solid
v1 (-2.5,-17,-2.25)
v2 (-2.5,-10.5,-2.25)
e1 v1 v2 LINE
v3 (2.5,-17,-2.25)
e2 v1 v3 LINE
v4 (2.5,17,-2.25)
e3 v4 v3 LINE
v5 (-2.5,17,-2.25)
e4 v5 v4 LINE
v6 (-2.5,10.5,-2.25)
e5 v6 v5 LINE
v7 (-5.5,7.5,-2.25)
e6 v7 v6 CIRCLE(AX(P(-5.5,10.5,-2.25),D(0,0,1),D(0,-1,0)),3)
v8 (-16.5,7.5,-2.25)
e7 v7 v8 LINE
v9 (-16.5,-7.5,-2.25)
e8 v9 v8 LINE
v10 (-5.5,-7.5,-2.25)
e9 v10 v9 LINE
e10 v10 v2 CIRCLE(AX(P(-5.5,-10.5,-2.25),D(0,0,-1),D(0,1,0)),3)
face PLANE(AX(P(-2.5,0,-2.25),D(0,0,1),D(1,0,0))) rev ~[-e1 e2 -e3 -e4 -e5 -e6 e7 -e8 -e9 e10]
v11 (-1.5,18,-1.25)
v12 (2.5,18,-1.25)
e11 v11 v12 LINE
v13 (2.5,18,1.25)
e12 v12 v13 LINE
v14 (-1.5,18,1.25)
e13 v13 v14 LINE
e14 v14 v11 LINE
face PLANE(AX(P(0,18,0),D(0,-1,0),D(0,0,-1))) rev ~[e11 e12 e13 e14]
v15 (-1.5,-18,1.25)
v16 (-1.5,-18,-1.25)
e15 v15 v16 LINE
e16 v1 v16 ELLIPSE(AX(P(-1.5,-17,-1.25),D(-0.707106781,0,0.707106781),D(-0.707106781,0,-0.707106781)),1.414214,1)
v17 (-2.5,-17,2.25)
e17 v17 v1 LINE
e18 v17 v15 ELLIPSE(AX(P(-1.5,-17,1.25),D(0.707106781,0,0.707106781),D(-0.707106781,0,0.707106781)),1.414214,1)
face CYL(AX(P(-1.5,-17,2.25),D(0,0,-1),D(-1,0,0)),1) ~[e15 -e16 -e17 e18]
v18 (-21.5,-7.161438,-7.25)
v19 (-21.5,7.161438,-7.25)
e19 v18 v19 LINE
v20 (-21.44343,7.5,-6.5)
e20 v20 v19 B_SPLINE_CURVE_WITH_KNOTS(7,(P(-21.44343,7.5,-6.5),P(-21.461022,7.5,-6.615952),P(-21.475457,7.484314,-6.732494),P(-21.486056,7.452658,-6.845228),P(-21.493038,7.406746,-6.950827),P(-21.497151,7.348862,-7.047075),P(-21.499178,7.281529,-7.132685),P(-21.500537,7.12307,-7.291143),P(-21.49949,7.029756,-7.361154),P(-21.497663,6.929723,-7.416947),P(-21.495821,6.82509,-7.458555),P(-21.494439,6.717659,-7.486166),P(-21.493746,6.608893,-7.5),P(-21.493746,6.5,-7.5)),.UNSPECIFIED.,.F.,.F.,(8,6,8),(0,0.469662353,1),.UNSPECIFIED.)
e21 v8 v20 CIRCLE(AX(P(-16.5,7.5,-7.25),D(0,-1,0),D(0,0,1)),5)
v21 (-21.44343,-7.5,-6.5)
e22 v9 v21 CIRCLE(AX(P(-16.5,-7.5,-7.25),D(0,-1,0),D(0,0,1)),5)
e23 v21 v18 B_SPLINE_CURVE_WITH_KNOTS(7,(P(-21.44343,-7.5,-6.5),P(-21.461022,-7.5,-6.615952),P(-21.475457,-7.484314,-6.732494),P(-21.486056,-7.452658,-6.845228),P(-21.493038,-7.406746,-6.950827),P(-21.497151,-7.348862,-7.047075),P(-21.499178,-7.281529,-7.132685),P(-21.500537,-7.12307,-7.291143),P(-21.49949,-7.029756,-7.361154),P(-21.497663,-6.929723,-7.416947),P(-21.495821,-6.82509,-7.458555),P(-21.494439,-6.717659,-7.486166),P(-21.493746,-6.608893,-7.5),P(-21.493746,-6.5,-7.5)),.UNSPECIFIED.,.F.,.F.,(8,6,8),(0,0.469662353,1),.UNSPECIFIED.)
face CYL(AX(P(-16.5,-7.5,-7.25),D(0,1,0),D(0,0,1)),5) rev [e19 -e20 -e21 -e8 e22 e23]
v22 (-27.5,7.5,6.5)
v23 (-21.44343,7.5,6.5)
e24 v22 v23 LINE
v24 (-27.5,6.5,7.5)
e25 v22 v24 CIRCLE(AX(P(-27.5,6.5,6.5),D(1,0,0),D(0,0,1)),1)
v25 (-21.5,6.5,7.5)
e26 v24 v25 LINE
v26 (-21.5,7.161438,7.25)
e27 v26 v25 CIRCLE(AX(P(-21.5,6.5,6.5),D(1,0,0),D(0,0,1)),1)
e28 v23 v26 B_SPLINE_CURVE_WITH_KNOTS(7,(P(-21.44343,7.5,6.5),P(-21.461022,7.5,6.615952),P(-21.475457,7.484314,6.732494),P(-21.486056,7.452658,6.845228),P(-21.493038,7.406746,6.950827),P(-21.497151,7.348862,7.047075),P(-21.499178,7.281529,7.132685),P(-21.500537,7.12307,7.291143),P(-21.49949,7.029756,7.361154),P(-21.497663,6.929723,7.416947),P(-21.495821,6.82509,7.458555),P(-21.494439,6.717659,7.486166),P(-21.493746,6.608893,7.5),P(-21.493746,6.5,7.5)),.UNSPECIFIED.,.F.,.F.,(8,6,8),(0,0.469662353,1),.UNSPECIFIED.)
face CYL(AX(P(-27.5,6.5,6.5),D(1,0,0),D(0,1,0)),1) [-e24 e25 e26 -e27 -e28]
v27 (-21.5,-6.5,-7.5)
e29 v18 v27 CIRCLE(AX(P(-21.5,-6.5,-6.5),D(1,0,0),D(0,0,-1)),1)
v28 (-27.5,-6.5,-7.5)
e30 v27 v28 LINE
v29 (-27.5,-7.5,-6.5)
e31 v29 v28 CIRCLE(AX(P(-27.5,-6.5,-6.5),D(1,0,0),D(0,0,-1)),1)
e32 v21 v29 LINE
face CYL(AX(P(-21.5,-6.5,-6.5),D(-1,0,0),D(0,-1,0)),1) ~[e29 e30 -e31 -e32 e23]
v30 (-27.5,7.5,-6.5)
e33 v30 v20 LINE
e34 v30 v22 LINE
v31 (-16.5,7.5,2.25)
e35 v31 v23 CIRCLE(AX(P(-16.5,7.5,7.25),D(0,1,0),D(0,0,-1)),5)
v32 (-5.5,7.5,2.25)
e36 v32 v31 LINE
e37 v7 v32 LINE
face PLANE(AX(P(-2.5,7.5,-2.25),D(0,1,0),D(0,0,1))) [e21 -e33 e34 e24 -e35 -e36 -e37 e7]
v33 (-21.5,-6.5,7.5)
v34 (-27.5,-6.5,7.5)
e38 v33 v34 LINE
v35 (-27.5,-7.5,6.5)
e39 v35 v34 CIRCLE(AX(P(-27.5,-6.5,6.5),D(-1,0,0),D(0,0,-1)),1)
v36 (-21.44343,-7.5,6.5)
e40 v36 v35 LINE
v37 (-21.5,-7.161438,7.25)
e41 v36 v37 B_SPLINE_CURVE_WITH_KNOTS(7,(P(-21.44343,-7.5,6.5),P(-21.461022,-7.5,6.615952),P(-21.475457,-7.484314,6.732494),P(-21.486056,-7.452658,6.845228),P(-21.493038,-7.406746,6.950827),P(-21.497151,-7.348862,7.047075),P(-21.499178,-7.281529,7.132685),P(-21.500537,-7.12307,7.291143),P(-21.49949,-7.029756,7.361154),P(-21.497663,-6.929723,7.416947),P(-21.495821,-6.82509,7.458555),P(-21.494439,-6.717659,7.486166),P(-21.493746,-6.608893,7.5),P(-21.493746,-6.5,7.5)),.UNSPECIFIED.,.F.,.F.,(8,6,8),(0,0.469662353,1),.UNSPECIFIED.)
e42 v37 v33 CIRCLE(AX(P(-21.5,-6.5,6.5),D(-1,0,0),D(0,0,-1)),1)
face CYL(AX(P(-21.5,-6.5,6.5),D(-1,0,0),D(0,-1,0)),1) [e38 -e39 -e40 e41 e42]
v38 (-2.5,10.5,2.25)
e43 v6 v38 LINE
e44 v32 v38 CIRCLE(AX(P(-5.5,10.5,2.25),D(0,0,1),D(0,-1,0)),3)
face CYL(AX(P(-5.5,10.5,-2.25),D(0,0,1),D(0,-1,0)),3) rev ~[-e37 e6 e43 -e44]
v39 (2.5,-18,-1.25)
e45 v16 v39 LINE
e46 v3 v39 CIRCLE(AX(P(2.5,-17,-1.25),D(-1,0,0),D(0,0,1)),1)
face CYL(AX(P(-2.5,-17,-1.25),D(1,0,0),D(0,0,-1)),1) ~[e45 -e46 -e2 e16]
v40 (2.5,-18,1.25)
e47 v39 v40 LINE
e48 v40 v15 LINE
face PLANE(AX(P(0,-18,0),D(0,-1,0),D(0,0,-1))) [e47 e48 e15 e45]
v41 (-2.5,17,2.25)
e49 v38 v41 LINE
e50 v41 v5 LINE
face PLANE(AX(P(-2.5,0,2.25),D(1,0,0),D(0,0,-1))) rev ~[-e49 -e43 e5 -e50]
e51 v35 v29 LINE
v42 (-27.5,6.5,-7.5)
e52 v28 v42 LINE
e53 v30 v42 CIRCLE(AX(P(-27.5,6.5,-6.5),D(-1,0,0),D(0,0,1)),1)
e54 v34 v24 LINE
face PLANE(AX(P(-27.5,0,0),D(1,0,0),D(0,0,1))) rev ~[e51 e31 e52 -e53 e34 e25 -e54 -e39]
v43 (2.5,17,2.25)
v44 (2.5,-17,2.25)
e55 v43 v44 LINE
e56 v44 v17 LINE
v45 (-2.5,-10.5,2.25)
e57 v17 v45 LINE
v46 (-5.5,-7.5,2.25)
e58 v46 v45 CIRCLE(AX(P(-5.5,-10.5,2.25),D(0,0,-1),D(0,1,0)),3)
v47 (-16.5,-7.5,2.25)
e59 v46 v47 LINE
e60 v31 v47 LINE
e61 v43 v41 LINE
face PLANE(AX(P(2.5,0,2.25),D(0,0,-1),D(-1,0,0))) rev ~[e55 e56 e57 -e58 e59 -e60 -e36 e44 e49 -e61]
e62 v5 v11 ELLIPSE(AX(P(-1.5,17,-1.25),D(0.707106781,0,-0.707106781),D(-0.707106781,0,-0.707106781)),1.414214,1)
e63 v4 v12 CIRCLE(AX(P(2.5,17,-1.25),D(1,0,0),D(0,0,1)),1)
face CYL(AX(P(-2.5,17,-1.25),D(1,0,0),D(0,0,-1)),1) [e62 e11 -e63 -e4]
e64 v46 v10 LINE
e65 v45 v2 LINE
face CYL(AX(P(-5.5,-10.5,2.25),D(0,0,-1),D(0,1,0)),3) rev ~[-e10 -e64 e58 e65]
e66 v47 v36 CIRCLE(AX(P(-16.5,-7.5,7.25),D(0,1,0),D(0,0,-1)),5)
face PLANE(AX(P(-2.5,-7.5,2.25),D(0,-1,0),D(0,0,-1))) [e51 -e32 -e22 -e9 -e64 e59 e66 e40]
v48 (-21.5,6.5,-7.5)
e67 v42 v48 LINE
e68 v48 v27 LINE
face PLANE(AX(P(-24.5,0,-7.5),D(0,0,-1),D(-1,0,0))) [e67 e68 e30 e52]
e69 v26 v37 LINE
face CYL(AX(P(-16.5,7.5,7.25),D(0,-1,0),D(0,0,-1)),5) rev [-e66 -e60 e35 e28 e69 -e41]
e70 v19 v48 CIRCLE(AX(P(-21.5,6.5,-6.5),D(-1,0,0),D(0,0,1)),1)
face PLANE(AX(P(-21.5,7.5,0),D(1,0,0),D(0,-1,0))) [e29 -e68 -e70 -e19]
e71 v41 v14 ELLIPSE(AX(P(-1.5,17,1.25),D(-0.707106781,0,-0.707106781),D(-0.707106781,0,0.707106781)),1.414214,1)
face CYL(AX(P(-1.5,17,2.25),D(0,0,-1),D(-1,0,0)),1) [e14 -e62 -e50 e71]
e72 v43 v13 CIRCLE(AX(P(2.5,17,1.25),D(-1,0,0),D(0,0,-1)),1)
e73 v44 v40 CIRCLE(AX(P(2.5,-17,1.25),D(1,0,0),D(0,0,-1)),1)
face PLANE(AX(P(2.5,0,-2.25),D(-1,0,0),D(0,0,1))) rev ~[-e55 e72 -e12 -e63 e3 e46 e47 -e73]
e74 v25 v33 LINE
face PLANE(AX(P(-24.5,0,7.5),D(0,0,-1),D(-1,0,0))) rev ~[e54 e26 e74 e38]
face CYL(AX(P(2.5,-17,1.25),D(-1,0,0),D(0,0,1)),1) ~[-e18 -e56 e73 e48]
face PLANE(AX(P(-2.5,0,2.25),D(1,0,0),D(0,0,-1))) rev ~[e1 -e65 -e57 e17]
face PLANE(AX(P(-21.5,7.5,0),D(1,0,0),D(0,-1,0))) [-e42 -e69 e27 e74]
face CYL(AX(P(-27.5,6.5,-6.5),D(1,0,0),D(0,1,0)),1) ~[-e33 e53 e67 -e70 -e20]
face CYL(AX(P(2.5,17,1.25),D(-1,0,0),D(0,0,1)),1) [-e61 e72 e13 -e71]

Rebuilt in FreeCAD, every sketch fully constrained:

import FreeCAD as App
import Part
import Sketcher


def edges_at(feature, points):
    """Names of the edges that pass closest to the given points."""
    edges = feature.Shape.Edges
    near = lambda p: min(range(len(edges)), key=lambda i: edges[i].distToShape(Part.Vertex(*p))[0])
    return sorted({f"Edge{near(p) + 1}" for p in points})

doc = App.newDocument("Part")
body = doc.addObject("PartDesign::Body", "Body")

sketch1 = body.newObject("Sketcher::SketchObject", "Sketch")
sketch1.AttachmentSupport = (doc.getObject("XZ_Plane"), [""])
sketch1.MapMode = "FlatFace"
sketch1.addGeometry([
    Part.LineSegment(App.Vector(-2.5, 2.25, 0), App.Vector(-2.5, -2.25, 0)),
    Part.LineSegment(App.Vector(-2.5, -2.25, 0), App.Vector(2.5, -2.25, 0)),
    Part.LineSegment(App.Vector(2.5, -2.25, 0), App.Vector(2.5, 2.25, 0)),
    Part.LineSegment(App.Vector(2.5, 2.25, 0), App.Vector(-2.5, 2.25, 0)),
], False)
sketch1.addConstraint([
    Sketcher.Constraint("Coincident", 0, 2, 1, 1),
    Sketcher.Constraint("Coincident", 1, 2, 2, 1),
    Sketcher.Constraint("Coincident", 2, 2, 3, 1),
    Sketcher.Constraint("Coincident", 3, 2, 0, 1),
    Sketcher.Constraint("Vertical", 0),
    Sketcher.Constraint("Horizontal", 1),
    Sketcher.Constraint("Vertical", 2),
    Sketcher.Constraint("Horizontal", 3),
    Sketcher.Constraint("Symmetric", 0, 2, 2, 2, -1, 1),
    Sketcher.Constraint("DistanceX", 0, 2, -1, 1, 2.5),
    Sketcher.Constraint("DistanceY", 0, 2, 0, 1, 4.5),
])
pad1 = body.newObject("PartDesign::Pad", "Pad")
pad1.Profile = sketch1
pad1.Length = 36
pad1.Midplane = True
doc.recompute()

fillet = body.newObject("PartDesign::Fillet", "Fillet")
fillet.Base = (pad1, edges_at(pad1, [(0, 18, 2.25), (-2.5, 18, 0), (0, 18, -2.25)]))
fillet.Radius = 1
doc.recompute()

mirrored = body.newObject("PartDesign::Mirrored", "Mirrored")
mirrored.Originals = [fillet]
mirrored.MirrorPlane = (doc.getObject("XZ_Plane"), [""])
body.Tip = mirrored

sketch2 = body.newObject("Sketcher::SketchObject", "Sketch001")
sketch2.AttachmentSupport = (doc.getObject("YZ_Plane"), [""])
sketch2.MapMode = "FlatFace"
sketch2.AttachmentOffset = App.Placement(App.Vector(0, 0, -2.5), App.Rotation())
sketch2.addGeometry([
    Part.LineSegment(App.Vector(7.5, -2.25, 0), App.Vector(-7.5, -2.25, 0)),
    Part.LineSegment(App.Vector(-7.5, -2.25, 0), App.Vector(-7.5, 2.25, 0)),
    Part.LineSegment(App.Vector(-7.5, 2.25, 0), App.Vector(7.5, 2.25, 0)),
    Part.LineSegment(App.Vector(7.5, 2.25, 0), App.Vector(7.5, -2.25, 0)),
], False)
sketch2.addConstraint([
    Sketcher.Constraint("Coincident", 0, 2, 1, 1),
    Sketcher.Constraint("Coincident", 1, 2, 2, 1),
    Sketcher.Constraint("Coincident", 2, 2, 3, 1),
    Sketcher.Constraint("Coincident", 3, 2, 0, 1),
    Sketcher.Constraint("Horizontal", 0),
    Sketcher.Constraint("Vertical", 1),
    Sketcher.Constraint("Horizontal", 2),
    Sketcher.Constraint("Vertical", 3),
    Sketcher.Constraint("Symmetric", 0, 2, 2, 2, -1, 1),
    Sketcher.Constraint("DistanceX", 0, 2, -1, 1, 7.5),
    Sketcher.Constraint("DistanceY", 1, 1, 1, 2, 4.5),
])
pad2 = body.newObject("PartDesign::Pad", "Pad001")
pad2.Profile = sketch2
pad2.Length = 25
pad2.Reversed = True

sketch3 = body.newObject("Sketcher::SketchObject", "Sketch002")
sketch3.AttachmentSupport = (doc.getObject("XY_Plane"), [""])
sketch3.MapMode = "FlatFace"
sketch3.addGeometry([
    Part.LineSegment(App.Vector(-27.5, -7.5, 0), App.Vector(-21.5, -7.5, 0)),
    Part.LineSegment(App.Vector(-21.5, -7.5, 0), App.Vector(-21.5, 7.5, 0)),
    Part.LineSegment(App.Vector(-21.5, 7.5, 0), App.Vector(-27.5, 7.5, 0)),
    Part.LineSegment(App.Vector(-27.5, 7.5, 0), App.Vector(-27.5, -7.5, 0)),
], False)
sketch3.addConstraint([
    Sketcher.Constraint("Coincident", 0, 2, 1, 1),
    Sketcher.Constraint("Coincident", 1, 2, 2, 1),
    Sketcher.Constraint("Coincident", 2, 2, 3, 1),
    Sketcher.Constraint("Coincident", 3, 2, 0, 1),
    Sketcher.Constraint("Horizontal", 0),
    Sketcher.Constraint("Vertical", 1),
    Sketcher.Constraint("Horizontal", 2),
    Sketcher.Constraint("Vertical", 3),
    Sketcher.Constraint("DistanceX", 2, 2, -1, 1, 27.5),
    Sketcher.Constraint("DistanceX", 0, 1, 0, 2, 6.0),
    Sketcher.Constraint("DistanceY", 1, 1, 1, 2, 15.0),
    Sketcher.Constraint("DistanceY", 0, 2, -1, 1, 7.5),
])
pad3 = body.newObject("PartDesign::Pad", "Pad002")
pad3.Profile = sketch3
pad3.Length = 15
pad3.Midplane = True
doc.recompute()

fillet2 = body.newObject("PartDesign::Fillet", "Fillet001")
fillet2.Base = (pad3, edges_at(pad3, [(-21.5, 0, 2.25), (-21.5, 0, -2.25)]))
fillet2.Radius = 5
doc.recompute()

fillet3 = body.newObject("PartDesign::Fillet", "Fillet002")
fillet3.Base = (fillet2, edges_at(fillet2, [
    (-24.5, -7.5, 7.5),
    (-24.5, 7.5, 7.5),
    (-24.5, -7.5, -7.5),
    (-24.5, 7.5, -7.5),
]))
fillet3.Radius = 1
doc.recompute()

fillet4 = body.newObject("PartDesign::Fillet", "Fillet003")
fillet4.Base = (fillet3, edges_at(fillet3, [(-2.5, -7.5, 0), (-2.5, 7.5, 0)]))
fillet4.Radius = 3

doc.recompute()
